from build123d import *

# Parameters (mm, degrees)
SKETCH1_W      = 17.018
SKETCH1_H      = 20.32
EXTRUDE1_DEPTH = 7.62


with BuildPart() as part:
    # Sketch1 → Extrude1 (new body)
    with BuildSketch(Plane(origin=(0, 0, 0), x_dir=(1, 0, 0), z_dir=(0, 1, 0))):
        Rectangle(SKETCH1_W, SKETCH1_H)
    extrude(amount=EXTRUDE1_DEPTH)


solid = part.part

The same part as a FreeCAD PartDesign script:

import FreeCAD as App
import Part
import Sketcher

V = App.Vector
Q = App.Units.Quantity

doc = App.newDocument("Part")
params = doc.addObject("Spreadsheet::Sheet", "Params")
for row, (alias, value) in enumerate([
    ("sketch1_height", "0.8 in"),
    ("sketch1_width", "0.67 in"),
    ("pad1_length", "0.3 in"),
], start=1):
    params.set(f"A{row}", alias)
    params.set(f"B{row}", "=" + value)
    params.setAlias(f"B{row}", alias)

body = doc.addObject("PartDesign::Body", "Body")

# Sketch on XZ plane
sketch1 = body.newObject("Sketcher::SketchObject", "Sketch")
sketch1.AttachmentSupport = (doc.getObject("XZ_Plane"), [""])
sketch1.MapMode = "FlatFace"
sketch1.addGeometry(Part.LineSegment(V(-9, -10, 0), V(-9, 10, 0)), False)
sketch1.addGeometry(Part.LineSegment(V(-9, 10, 0), V(9, 10, 0)), False)
sketch1.addGeometry(Part.LineSegment(V(9, 10, 0), V(9, -10, 0)), False)
sketch1.addGeometry(Part.LineSegment(V(9, -10, 0), V(-9, -10, 0)), False)
sketch1.addConstraint(Sketcher.Constraint("Coincident", 0, 2, 1, 1))
sketch1.addConstraint(Sketcher.Constraint("Coincident", 1, 2, 2, 1))
sketch1.addConstraint(Sketcher.Constraint("Coincident", 2, 2, 3, 1))
sketch1.addConstraint(Sketcher.Constraint("Coincident", 3, 2, 0, 1))
sketch1.addConstraint(Sketcher.Constraint("Vertical", 0))
sketch1.addConstraint(Sketcher.Constraint("Horizontal", 1))
sketch1.addConstraint(Sketcher.Constraint("Vertical", 2))
sketch1.addConstraint(Sketcher.Constraint("Horizontal", 3))
sketch1.addConstraint(Sketcher.Constraint("Symmetric", 0, 2, 2, 2, -1, 1))
sketch1.addConstraint(Sketcher.Constraint("DistanceY", 0, 1, 0, 2, Q("0.8 in")))
sketch1.addConstraint(Sketcher.Constraint("DistanceX", 1, 1, 1, 2, Q("0.67 in")))
sketch1.setExpression("Constraints[9]", "Params.sketch1_height")
sketch1.setExpression("Constraints[10]", "Params.sketch1_width")
pad1 = body.newObject("PartDesign::Pad", "Pad")
pad1.Profile = sketch1
pad1.setExpression("Length", "Params.pad1_length")
pad1.Reversed = True

doc.recompute()
